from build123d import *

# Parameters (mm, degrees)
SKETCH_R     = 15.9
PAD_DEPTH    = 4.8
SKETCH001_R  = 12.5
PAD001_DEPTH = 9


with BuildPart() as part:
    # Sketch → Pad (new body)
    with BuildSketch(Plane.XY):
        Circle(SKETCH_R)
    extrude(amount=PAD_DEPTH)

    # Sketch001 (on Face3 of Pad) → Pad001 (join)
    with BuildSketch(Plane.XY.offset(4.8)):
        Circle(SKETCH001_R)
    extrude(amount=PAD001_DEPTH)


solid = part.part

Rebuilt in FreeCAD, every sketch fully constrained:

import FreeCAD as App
import Part
import Sketcher
from FreeCAD import Vector

doc = App.newDocument("Part")
body = doc.addObject("PartDesign::Body", "Body")

sketch1 = doc.addObject("Sketcher::SketchObject", "Sketch")
body.addObject(sketch1)
sketch1.AttachmentSupport = (doc.XY_Plane, [""])
sketch1.MapMode = "FlatFace"
sketch1.addGeometry(Part.Circle(Vector(0, 0, 0), Vector(0, 0, 1), 16), False)
sketch1.addConstraint([
    Sketcher.Constraint("Coincident", 0, 3, -1, 1),
    Sketcher.Constraint("Diameter", 0, 31.8),
])
pad1 = doc.addObject("PartDesign::Pad", "Pad")
body.addObject(pad1)
pad1.Profile = sketch1
pad1.Length = 4.8

sketch2 = doc.addObject("Sketcher::SketchObject", "Sketch001")
body.addObject(sketch2)
sketch2.AttachmentSupport = (doc.XY_Plane, [""])
sketch2.MapMode = "FlatFace"
sketch2.AttachmentOffset = App.Placement(Vector(0, 0, 4.8), App.Rotation())
sketch2.addGeometry(Part.Circle(Vector(0, 0, 0), Vector(0, 0, 1), 12), False)
sketch2.addConstraint([
    Sketcher.Constraint("Coincident", 0, 3, -1, 1),
    Sketcher.Constraint("Diameter", 0, 25.0),
])
pad2 = doc.addObject("PartDesign::Pad", "Pad001")
body.addObject(pad2)
pad2.Profile = sketch2
pad2.Length = 9

doc.recompute()
